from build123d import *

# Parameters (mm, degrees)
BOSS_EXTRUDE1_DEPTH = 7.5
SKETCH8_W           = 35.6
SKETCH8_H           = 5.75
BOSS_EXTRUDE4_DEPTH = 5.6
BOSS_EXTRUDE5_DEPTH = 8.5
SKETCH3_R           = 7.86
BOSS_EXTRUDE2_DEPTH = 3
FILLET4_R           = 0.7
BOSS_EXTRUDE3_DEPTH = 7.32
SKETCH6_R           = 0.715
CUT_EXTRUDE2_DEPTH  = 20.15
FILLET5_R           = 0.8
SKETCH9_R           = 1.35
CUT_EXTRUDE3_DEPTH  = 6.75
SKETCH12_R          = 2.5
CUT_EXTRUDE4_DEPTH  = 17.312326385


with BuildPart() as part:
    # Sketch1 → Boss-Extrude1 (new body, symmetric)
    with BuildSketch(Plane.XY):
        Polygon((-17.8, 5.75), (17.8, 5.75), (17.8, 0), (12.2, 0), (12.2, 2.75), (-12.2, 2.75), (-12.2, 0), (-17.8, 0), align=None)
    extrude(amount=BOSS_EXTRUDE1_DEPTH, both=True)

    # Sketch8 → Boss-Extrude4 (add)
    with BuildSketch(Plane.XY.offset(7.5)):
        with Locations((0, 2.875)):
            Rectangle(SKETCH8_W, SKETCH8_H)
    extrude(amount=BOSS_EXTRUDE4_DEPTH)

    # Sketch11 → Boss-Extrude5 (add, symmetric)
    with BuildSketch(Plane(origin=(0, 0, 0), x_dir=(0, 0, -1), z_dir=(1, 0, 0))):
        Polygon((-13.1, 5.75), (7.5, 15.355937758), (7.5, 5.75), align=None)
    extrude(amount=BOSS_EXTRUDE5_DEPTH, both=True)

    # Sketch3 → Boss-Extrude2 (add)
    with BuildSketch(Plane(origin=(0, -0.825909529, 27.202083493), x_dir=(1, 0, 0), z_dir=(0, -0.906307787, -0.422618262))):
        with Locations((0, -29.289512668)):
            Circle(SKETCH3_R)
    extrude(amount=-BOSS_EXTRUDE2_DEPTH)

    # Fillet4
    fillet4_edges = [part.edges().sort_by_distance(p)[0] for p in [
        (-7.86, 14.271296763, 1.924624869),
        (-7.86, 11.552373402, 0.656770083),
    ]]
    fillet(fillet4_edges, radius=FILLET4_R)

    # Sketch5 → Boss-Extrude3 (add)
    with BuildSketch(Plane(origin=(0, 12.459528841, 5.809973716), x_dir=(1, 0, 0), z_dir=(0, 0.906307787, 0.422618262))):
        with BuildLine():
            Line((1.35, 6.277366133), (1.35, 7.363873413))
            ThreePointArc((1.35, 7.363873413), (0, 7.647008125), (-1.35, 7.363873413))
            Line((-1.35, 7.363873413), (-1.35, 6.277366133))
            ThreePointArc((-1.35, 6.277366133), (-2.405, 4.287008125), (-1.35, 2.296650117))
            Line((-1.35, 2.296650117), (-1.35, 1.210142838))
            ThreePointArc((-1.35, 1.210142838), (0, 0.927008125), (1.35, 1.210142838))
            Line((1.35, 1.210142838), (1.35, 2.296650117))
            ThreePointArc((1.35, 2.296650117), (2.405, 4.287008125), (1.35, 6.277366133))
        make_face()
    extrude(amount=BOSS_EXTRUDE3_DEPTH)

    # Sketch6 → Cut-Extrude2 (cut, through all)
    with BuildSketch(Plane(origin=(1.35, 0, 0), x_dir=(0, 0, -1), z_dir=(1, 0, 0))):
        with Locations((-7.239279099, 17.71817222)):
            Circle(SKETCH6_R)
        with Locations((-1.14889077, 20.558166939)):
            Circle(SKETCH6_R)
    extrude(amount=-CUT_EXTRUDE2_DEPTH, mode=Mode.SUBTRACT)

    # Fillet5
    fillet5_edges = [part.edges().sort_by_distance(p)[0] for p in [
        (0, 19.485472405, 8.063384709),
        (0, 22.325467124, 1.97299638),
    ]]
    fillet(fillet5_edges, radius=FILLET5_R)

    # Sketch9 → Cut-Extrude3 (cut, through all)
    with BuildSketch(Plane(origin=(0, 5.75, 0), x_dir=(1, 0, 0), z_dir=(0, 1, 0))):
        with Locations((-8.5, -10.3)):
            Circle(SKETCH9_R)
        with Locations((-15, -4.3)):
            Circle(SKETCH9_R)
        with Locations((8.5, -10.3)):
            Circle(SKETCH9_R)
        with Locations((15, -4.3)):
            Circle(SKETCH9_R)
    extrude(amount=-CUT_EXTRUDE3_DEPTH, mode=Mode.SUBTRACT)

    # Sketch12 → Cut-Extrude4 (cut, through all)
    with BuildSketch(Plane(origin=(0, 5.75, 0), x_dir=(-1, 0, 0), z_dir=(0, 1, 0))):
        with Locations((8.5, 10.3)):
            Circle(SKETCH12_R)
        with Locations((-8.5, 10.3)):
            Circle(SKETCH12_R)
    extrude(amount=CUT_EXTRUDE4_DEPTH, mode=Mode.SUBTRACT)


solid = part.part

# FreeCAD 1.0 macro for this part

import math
import FreeCAD as App
import Part
import Sketcher

V = App.Vector
Q = App.Units.Quantity


def edges_at(feature, points):
    """Names of the edges that pass closest to the given points."""
    edges = feature.Shape.Edges
    near = lambda p: min(range(len(edges)), key=lambda i: edges[i].distToShape(Part.Vertex(*p))[0])
    return sorted({f"Edge{near(p) + 1}" for p in points})

doc = App.newDocument("Part")
body = doc.addObject("PartDesign::Body", "Body")

# Sketch on XY plane
sketch1 = body.newObject("Sketcher::SketchObject", "Sketch")
sketch1.AttachmentSupport = (doc.getObject("XY_Plane"), [""])
sketch1.MapMode = "FlatFace"
sketch1.addGeometry(Part.LineSegment(V(17.8, 5.8, 0), V(-17.8, 5.8, 0)), False)
sketch1.addGeometry(Part.LineSegment(V(-17.8, 5.8, 0), V(-17.8, 0, 0)), False)
sketch1.addGeometry(Part.LineSegment(V(-17.8, 0, 0), V(-12.2, 0, 0)), False)
sketch1.addGeometry(Part.LineSegment(V(-12.2, 0, 0), V(-12.2, 2.8, 0)), False)
sketch1.addGeometry(Part.LineSegment(V(-12.2, 2.8, 0), V(12.2, 2.8, 0)), False)
sketch1.addGeometry(Part.LineSegment(V(12.2, 2.8, 0), V(12.2, 0, 0)), False)
sketch1.addGeometry(Part.LineSegment(V(12.2, 0, 0), V(17.8, 0, 0)), False)
sketch1.addGeometry(Part.LineSegment(V(17.8, 0, 0), V(17.8, 5.8, 0)), False)
sketch1.addConstraint(Sketcher.Constraint("Coincident", 0, 2, 1, 1))
sketch1.addConstraint(Sketcher.Constraint("Coincident", 1, 2, 2, 1))
sketch1.addConstraint(Sketcher.Constraint("Coincident", 2, 2, 3, 1))
sketch1.addConstraint(Sketcher.Constraint("Coincident", 3, 2, 4, 1))
sketch1.addConstraint(Sketcher.Constraint("Coincident", 4, 2, 5, 1))
sketch1.addConstraint(Sketcher.Constraint("Coincident", 5, 2, 6, 1))
sketch1.addConstraint(Sketcher.Constraint("Coincident", 6, 2, 7, 1))
sketch1.addConstraint(Sketcher.Constraint("Coincident", 7, 2, 0, 1))
sketch1.addConstraint(Sketcher.Constraint("Horizontal", 0))
sketch1.addConstraint(Sketcher.Constraint("Vertical", 1))
sketch1.addConstraint(Sketcher.Constraint("Horizontal", 2))
sketch1.addConstraint(Sketcher.Constraint("Vertical", 3))
sketch1.addConstraint(Sketcher.Constraint("Horizontal", 4))
sketch1.addConstraint(Sketcher.Constraint("Vertical", 5))
sketch1.addConstraint(Sketcher.Constraint("Horizontal", 6))
sketch1.addConstraint(Sketcher.Constraint("Vertical", 7))
sketch1.addConstraint(Sketcher.Constraint("Symmetric", 2, 2, 5, 2, -1, 1))
sketch1.addConstraint(Sketcher.Constraint("Symmetric", 1, 2, 6, 2, -2))
sketch1.addConstraint(Sketcher.Constraint("DistanceX", 0, 2, 0, 1, 35.6))
sketch1.addConstraint(Sketcher.Constraint("DistanceX", 2, 1, 2, 2, 5.6))
sketch1.addConstraint(Sketcher.Constraint("DistanceY", 3, 2, 0, 2, 3.0))
sketch1.addConstraint(Sketcher.Constraint("DistanceY", 1, 2, 1, 1, 5.75))
pad1 = body.newObject("PartDesign::Pad", "Pad")
pad1.Profile = sketch1
pad1.Length = 15
pad1.Midplane = True

# Sketch on XY plane
sketch2 = body.newObject("Sketcher::SketchObject", "Sketch001")
sketch2.AttachmentSupport = (doc.getObject("XY_Plane"), [""])
sketch2.MapMode = "FlatFace"
sketch2.AttachmentOffset = App.Placement(V(0, 0, 7.5), App.Rotation())
sketch2.addGeometry(Part.LineSegment(V(-18, 6, 0), V(-18, 0, 0)), False)
sketch2.addGeometry(Part.LineSegment(V(-18, 0, 0), V(18, 0, 0)), False)
sketch2.addGeometry(Part.LineSegment(V(18, 0, 0), V(18, 6, 0)), False)
sketch2.addGeometry(Part.LineSegment(V(18, 6, 0), V(-18, 6, 0)), False)
sketch2.addConstraint(Sketcher.Constraint("Coincident", 0, 2, 1, 1))
sketch2.addConstraint(Sketcher.Constraint("Coincident", 1, 2, 2, 1))
sketch2.addConstraint(Sketcher.Constraint("Coincident", 2, 2, 3, 1))
sketch2.addConstraint(Sketcher.Constraint("Coincident", 3, 2, 0, 1))
sketch2.addConstraint(Sketcher.Constraint("Vertical", 0))
sketch2.addConstraint(Sketcher.Constraint("Horizontal", 1))
sketch2.addConstraint(Sketcher.Constraint("Vertical", 2))
sketch2.addConstraint(Sketcher.Constraint("Horizontal", 3))
sketch2.addConstraint(Sketcher.Constraint("Symmetric", 0, 2, 1, 2, -1, 1))
sketch2.addConstraint(Sketcher.Constraint("DistanceX", 1, 1, 1, 2, 35.6))
sketch2.addConstraint(Sketcher.Constraint("DistanceY", 0, 2, 0, 1, 5.75))
pad2 = body.newObject("PartDesign::Pad", "Pad001")
pad2.Profile = sketch2
pad2.Length = 5.6

# Sketch on YZ plane
sketch3 = body.newObject("Sketcher::SketchObject", "Sketch002")
sketch3.AttachmentSupport = (doc.getObject("YZ_Plane"), [""])
sketch3.MapMode = "FlatFace"
sketch3.addGeometry(Part.LineSegment(V(15, -8, 0), V(6, 13, 0)), False)
sketch3.addGeometry(Part.LineSegment(V(6, 13, 0), V(6, -8, 0)), False)
sketch3.addGeometry(Part.LineSegment(V(6, -8, 0), V(15, -8, 0)), False)
sketch3.addConstraint(Sketcher.Constraint("Coincident", 0, 2, 1, 1))
sketch3.addConstraint(Sketcher.Constraint("Coincident", 1, 2, 2, 1))
sketch3.addConstraint(Sketcher.Constraint("Coincident", 2, 2, 0, 1))
sketch3.addConstraint(Sketcher.Constraint("Vertical", 1))
sketch3.addConstraint(Sketcher.Constraint("Horizontal", 2))
sketch3.addConstraint(Sketcher.Constraint("Angle", 0, Q("115 deg")))
sketch3.addConstraint(Sketcher.Constraint("DistanceY", 1, 2, 1, 1, 20.6))
sketch3.addConstraint(Sketcher.Constraint("DistanceY", -1, 1, 0, 2, 13.1))
sketch3.addConstraint(Sketcher.Constraint("DistanceX", -1, 1, 0, 2, 5.75))
pad3 = body.newObject("PartDesign::Pad", "Pad002")
pad3.Profile = sketch3
pad3.Length = 17
pad3.Midplane = True

# Sketch on an angled plane
sketch4 = body.newObject("Sketcher::SketchObject", "Sketch003")
sketch4.Placement = App.Placement(V(0, -0.82591, 27.202083), App.Rotation(V(1, 0, 0), V(0, -0.422618262, 0.906307787), V(0, -0.906307787, -0.422618262), "ZXY"))
sketch4.addGeometry(Part.Circle(V(0, -29, 0), V(0, 0, 1), 8), False)
sketch4.addConstraint(Sketcher.Constraint("PointOnObject", 0, 3, -2))
sketch4.addConstraint(Sketcher.Constraint("Diameter", 0, 15.72))
sketch4.addConstraint(Sketcher.Constraint("DistanceY", 0, 3, -1, 1, 29.289513))
pad4 = body.newObject("PartDesign::Pad", "Pad003")
pad4.Profile = sketch4
pad4.Length = 3
pad4.Reversed = True
doc.recompute()

fillet = body.newObject("PartDesign::Fillet", "Fillet")
fillet.Base = (pad4, edges_at(pad4, [(-7.86, 14.271, 1.925), (-7.86, 11.552, 0.657)]))
fillet.Radius = 0.7

# Sketch on an angled plane
sketch5 = body.newObject("Sketcher::SketchObject", "Sketch004")
sketch5.Placement = App.Placement(V(0, 12.459529, 5.809974), App.Rotation(V(1, 0, 0), V(0, 0.422618262, -0.906307787), V(0, 0.906307787, 0.422618262), "ZXY"))
sketch5.addGeometry(Part.LineSegment(V(1.4, 6.3, 0), V(1.4, 7.4, 0)), False)
sketch5.addGeometry(Part.ArcOfCircle(Part.Circle(V(0, 4.3, 0), V(0, 0, 1), 3.4), math.radians(66), math.radians(114)), False)
sketch5.addGeometry(Part.LineSegment(V(-1.4, 7.4, 0), V(-1.4, 6.3, 0)), False)
sketch5.addGeometry(Part.ArcOfCircle(Part.Circle(V(0, 4.3, 0), V(0, 0, 1), 2.4), math.radians(124), math.radians(236)), False)
sketch5.addGeometry(Part.LineSegment(V(-1.4, 2.3, 0), V(-1.4, 1.2, 0)), False)
sketch5.addGeometry(Part.ArcOfCircle(Part.Circle(V(0, 4.3, 0), V(0, 0, 1), 3.4), math.radians(-114), math.radians(-66)), False)
sketch5.addGeometry(Part.LineSegment(V(1.4, 1.2, 0), V(1.4, 2.3, 0)), False)
sketch5.addGeometry(Part.ArcOfCircle(Part.Circle(V(0, 4.3, 0), V(0, 0, 1), 2.4), math.radians(-56), math.radians(56)), False)
sketch5.addConstraint(Sketcher.Constraint("Coincident", 0, 2, 1, 1))
sketch5.addConstraint(Sketcher.Constraint("Coincident", 1, 2, 2, 1))
sketch5.addConstraint(Sketcher.Constraint("Coincident", 2, 2, 3, 1))
sketch5.addConstraint(Sketcher.Constraint("Coincident", 3, 2, 4, 1))
sketch5.addConstraint(Sketcher.Constraint("Coincident", 4, 2, 5, 1))
sketch5.addConstraint(Sketcher.Constraint("Coincident", 5, 2, 6, 1))
sketch5.addConstraint(Sketcher.Constraint("Coincident", 6, 2, 7, 1))
sketch5.addConstraint(Sketcher.Constraint("Coincident", 7, 2, 0, 1))
sketch5.addConstraint(Sketcher.Constraint("Vertical", 0))
sketch5.addConstraint(Sketcher.Constraint("Vertical", 2))
sketch5.addConstraint(Sketcher.Constraint("Vertical", 4))
sketch5.addConstraint(Sketcher.Constraint("Vertical", 6))
sketch5.addConstraint(Sketcher.Constraint("Coincident", 3, 3, 1, 3))
sketch5.addConstraint(Sketcher.Constraint("Coincident", 5, 3, 1, 3))
sketch5.addConstraint(Sketcher.Constraint("Coincident", 7, 3, 1, 3))
sketch5.addConstraint(Sketcher.Constraint("Equal", 1, 5))
sketch5.addConstraint(Sketcher.Constraint("Equal", 3, 7))
sketch5.addConstraint(Sketcher.Constraint("Symmetric", 0, 2, 1, 2, -2))
sketch5.addConstraint(Sketcher.Constraint("Horizontal", 4, 2, 5, 2))
sketch5.addConstraint(Sketcher.Constraint("Vertical", 2, 2, 3, 2))
sketch5.addConstraint(Sketcher.Constraint("Radius", 1, 3.36))
sketch5.addConstraint(Sketcher.Constraint("Radius", 3, 2.405))
sketch5.addConstraint(Sketcher.Constraint("DistanceX", 1, 2, 0, 2, 2.7))
sketch5.addConstraint(Sketcher.Constraint("DistanceY", -1, 1, 1, 3, 4.287008))
pad5 = body.newObject("PartDesign::Pad", "Pad004")
pad5.Profile = sketch5
pad5.Length = 7.32

# Sketch on YZ plane
sketch6 = body.newObject("Sketcher::SketchObject", "Sketch005")
sketch6.AttachmentSupport = (doc.getObject("YZ_Plane"), [""])
sketch6.MapMode = "FlatFace"
sketch6.AttachmentOffset = App.Placement(V(0, 0, 1.35), App.Rotation())
sketch6.addGeometry(Part.Circle(V(17.7, 7.2, 0), V(0, 0, 1), 0.7), False)
sketch6.addGeometry(Part.Circle(V(20.6, 1.1, 0), V(0, 0, 1), 0.7), False)
sketch6.addConstraint(Sketcher.Constraint("Equal", 0, 1))
sketch6.addConstraint(Sketcher.Constraint("Diameter", 0, 1.43))
sketch6.addConstraint(Sketcher.Constraint("DistanceY", -1, 1, 0, 3, 7.239279))
sketch6.addConstraint(Sketcher.Constraint("DistanceY", -1, 1, 1, 3, 1.148891))
sketch6.addConstraint(Sketcher.Constraint("DistanceX", -1, 1, 0, 3, 17.718172))
sketch6.addConstraint(Sketcher.Constraint("DistanceX", -1, 1, 1, 3, 20.558167))
pocket1 = body.newObject("PartDesign::Pocket", "Pocket")
pocket1.Profile = sketch6
pocket1.Type = "ThroughAll"
doc.recompute()

fillet2 = body.newObject("PartDesign::Fillet", "Fillet001")
fillet2.Base = (pocket1, edges_at(pocket1, [(0, 19.485, 8.063), (0, 22.325, 1.973)]))
fillet2.Radius = 0.8

# Sketch on XZ plane
sketch7 = body.newObject("Sketcher::SketchObject", "Sketch006")
sketch7.AttachmentSupport = (doc.getObject("XZ_Plane"), [""])
sketch7.MapMode = "FlatFace"
sketch7.AttachmentOffset = App.Placement(V(0, 0, -5.75), App.Rotation())
sketch7.addGeometry(Part.Circle(V(-8.5, 10.3, 0), V(0, 0, 1), 1.4), False)
sketch7.addGeometry(Part.Circle(V(-15, 4.3, 0), V(0, 0, 1), 1.4), False)
sketch7.addGeometry(Part.Circle(V(8.5, 10.3, 0), V(0, 0, 1), 1.4), False)
sketch7.addGeometry(Part.Circle(V(15, 4.3, 0), V(0, 0, 1), 1.4), False)
sketch7.addConstraint(Sketcher.Constraint("Equal", 0, 1))
sketch7.addConstraint(Sketcher.Constraint("Equal", 1, 2))
sketch7.addConstraint(Sketcher.Constraint("Equal", 2, 3))
sketch7.addConstraint(Sketcher.Constraint("Symmetric", 0, 3, 2, 3, -2))
sketch7.addConstraint(Sketcher.Constraint("Symmetric", 1, 3, 3, 3, -2))
sketch7.addConstraint(Sketcher.Constraint("Diameter", 0, 2.7))
sketch7.addConstraint(Sketcher.Constraint("DistanceX", 1, 3, -1, 1, 15.0))
sketch7.addConstraint(Sketcher.Constraint("DistanceY", 1, 3, 0, 3, 6.0))
sketch7.addConstraint(Sketcher.Constraint("DistanceX", 0, 3, 2, 3, 17.0))
sketch7.addConstraint(Sketcher.Constraint("DistanceY", -1, 1, 0, 3, 10.3))
pocket2 = body.newObject("PartDesign::Pocket", "Pocket001")
pocket2.Profile = sketch7
pocket2.Type = "ThroughAll"
pocket2.Reversed = True

# Sketch on XZ plane
sketch8 = body.newObject("Sketcher::SketchObject", "Sketch007")
sketch8.AttachmentSupport = (doc.getObject("XZ_Plane"), [""])
sketch8.MapMode = "FlatFace"
sketch8.AttachmentOffset = App.Placement(V(0, 0, -5.75), App.Rotation())
sketch8.addGeometry(Part.Circle(V(-8.5, 10.3, 0), V(0, 0, 1), 2.5), False)
sketch8.addGeometry(Part.Circle(V(8.5, 10.3, 0), V(0, 0, 1), 2.5), False)
sketch8.addConstraint(Sketcher.Constraint("Equal", 0, 1))
sketch8.addConstraint(Sketcher.Constraint("Symmetric", 0, 3, 1, 3, -2))
sketch8.addConstraint(Sketcher.Constraint("Diameter", 0, 5.0))
sketch8.addConstraint(Sketcher.Constraint("DistanceX", 0, 3, 1, 3, 17.0))
sketch8.addConstraint(Sketcher.Constraint("DistanceY", -1, 1, 0, 3, 10.3))
pocket3 = body.newObject("PartDesign::Pocket", "Pocket002")
pocket3.Profile = sketch8
pocket3.Type = "ThroughAll"

doc.recompute()
